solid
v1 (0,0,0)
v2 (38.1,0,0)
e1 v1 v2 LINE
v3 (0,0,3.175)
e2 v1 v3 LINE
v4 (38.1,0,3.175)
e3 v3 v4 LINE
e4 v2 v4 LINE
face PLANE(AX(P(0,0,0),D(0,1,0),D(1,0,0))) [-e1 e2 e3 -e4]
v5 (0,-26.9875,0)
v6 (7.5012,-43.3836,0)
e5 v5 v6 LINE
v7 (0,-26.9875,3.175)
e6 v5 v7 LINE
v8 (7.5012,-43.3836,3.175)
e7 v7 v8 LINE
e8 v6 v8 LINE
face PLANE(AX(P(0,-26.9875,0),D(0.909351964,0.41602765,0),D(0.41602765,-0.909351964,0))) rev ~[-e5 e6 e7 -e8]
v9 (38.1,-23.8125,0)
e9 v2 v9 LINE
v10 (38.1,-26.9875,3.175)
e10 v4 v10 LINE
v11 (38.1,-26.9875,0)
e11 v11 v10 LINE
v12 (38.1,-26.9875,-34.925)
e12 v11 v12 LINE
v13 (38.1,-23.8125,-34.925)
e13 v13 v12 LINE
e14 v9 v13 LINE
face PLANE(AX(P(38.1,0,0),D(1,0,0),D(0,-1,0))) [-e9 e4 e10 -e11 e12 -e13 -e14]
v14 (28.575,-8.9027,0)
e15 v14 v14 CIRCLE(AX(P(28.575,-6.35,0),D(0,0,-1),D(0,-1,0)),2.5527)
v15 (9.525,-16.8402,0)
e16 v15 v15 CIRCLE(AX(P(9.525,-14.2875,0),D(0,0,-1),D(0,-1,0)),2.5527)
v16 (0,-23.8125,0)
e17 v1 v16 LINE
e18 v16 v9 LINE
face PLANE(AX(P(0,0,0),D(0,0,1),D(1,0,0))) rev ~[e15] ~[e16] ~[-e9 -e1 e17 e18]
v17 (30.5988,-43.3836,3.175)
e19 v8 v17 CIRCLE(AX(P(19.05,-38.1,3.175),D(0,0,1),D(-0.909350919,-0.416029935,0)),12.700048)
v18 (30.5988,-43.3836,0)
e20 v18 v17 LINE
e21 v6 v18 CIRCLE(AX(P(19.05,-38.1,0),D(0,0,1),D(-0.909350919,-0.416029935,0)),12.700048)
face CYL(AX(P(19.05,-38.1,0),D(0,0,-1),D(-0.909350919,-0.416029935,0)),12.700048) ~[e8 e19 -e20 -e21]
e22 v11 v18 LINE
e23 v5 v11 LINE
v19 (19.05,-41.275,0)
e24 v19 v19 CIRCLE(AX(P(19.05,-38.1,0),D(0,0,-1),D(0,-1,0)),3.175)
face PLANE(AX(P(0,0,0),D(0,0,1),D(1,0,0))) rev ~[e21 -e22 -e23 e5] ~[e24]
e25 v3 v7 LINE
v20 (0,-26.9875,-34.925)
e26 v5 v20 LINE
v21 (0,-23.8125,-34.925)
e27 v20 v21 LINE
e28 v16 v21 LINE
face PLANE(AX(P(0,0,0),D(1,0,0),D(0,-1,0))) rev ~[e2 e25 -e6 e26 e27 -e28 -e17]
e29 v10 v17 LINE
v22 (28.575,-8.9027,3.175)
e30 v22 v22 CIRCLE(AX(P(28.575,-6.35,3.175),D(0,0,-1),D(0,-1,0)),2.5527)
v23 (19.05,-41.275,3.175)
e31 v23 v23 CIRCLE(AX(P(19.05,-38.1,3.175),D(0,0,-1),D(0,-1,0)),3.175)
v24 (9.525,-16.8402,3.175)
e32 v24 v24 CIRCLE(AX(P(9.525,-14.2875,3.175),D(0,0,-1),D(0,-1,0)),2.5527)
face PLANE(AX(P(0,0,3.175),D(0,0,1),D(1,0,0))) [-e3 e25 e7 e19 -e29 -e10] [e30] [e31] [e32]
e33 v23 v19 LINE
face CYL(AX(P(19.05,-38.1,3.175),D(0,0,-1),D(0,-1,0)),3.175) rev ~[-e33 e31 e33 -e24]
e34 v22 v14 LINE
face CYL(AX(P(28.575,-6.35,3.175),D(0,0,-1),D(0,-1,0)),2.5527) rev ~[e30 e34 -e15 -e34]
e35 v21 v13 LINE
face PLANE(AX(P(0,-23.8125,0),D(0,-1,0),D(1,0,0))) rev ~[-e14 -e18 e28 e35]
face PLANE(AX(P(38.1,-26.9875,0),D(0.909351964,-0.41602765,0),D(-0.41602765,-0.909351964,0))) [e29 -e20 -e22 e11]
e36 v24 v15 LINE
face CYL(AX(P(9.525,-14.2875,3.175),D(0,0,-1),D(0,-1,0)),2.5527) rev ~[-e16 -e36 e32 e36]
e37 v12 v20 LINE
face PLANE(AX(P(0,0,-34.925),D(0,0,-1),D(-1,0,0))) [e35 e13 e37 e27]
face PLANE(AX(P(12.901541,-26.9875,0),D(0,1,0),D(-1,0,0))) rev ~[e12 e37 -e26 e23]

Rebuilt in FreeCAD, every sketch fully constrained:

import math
import FreeCAD as App
import Part
import Sketcher
Q = App.Units.Quantity


def add_polygon(sketch, points):
    """Adds a closed chain of lines whose ends are joined by coincident constraints."""
    first, n = sketch.GeometryCount, len(points)
    for a, b in zip(points, points[1:] + points[:1]):
        sketch.addGeometry(Part.LineSegment(App.Vector(*a, 0), App.Vector(*b, 0)), False)
    for i in range(n):
        sketch.addConstraint(Sketcher.Constraint("Coincident", first + i, 2, first + (i + 1) % n, 1))

doc = App.newDocument("Part")
body = doc.addObject("PartDesign::Body", "Body")

# Sketch on XY plane
sketch1 = body.newObject("Sketcher::SketchObject", "Sketch")
sketch1.AttachmentSupport = (doc.getObject("XY_Plane"), [""])
sketch1.MapMode = "FlatFace"
sketch1.addGeometry([
    Part.LineSegment(App.Vector(38, 0, 0), App.Vector(0, 0, 0)),  # 0
    Part.LineSegment(App.Vector(0, 0, 0), App.Vector(0, -27, 0)),  # 1
    Part.LineSegment(App.Vector(0, -27, 0), App.Vector(8, -43, 0)),  # 2
    Part.ArcOfCircle(Part.Circle(App.Vector(19, -38, 0), App.Vector(0, 0, 1), 13), math.radians(-155), math.radians(-25)),  # 3
    Part.LineSegment(App.Vector(31, -43, 0), App.Vector(38, -27, 0)),  # 4
    Part.LineSegment(App.Vector(38, -27, 0), App.Vector(38, 0, 0)),  # 5
], False)
sketch1.addConstraint([
    Sketcher.Constraint("Coincident", 0, 2, 1, 1),
    Sketcher.Constraint("Coincident", 1, 2, 2, 1),
    Sketcher.Constraint("Tangent", 2, 2, 3, 1),
    Sketcher.Constraint("Tangent", 3, 2, 4, 1),
    Sketcher.Constraint("Coincident", 4, 2, 5, 1),
    Sketcher.Constraint("Coincident", 5, 2, 0, 1),
    Sketcher.Constraint("Horizontal", 0),
    Sketcher.Constraint("Vertical", 1),
    Sketcher.Constraint("Vertical", 5),
    Sketcher.Constraint("Coincident", 0, 2, -1, 1),
    Sketcher.Constraint("Horizontal", 2, 2, 3, 2),
    Sketcher.Constraint("Horizontal", 1, 2, 4, 2),
    Sketcher.Constraint("Radius", 3, Q("0.5 in")),
    Sketcher.Constraint("DistanceX", 0, 2, 0, 1, Q("1.5 in")),
    Sketcher.Constraint("DistanceY", 3, 3, -1, 1, Q("1.5 in")),
    Sketcher.Constraint("DistanceY", 1, 2, 1, 1, Q("1.0625 in")),
])
pad1 = body.newObject("PartDesign::Pad", "Pad")
pad1.Profile = sketch1
pad1.Length = Q("0.125 in")

# Sketch on XY plane
sketch2 = body.newObject("Sketcher::SketchObject", "Sketch001")
sketch2.AttachmentSupport = (doc.getObject("XY_Plane"), [""])
sketch2.MapMode = "FlatFace"
add_polygon(sketch2, [(0, -23.8), (38.1, -23.8), (38.1, -27), (0, -27)])  # lines 0-3
sketch2.addConstraint([
    Sketcher.Constraint("Horizontal", 0),
    Sketcher.Constraint("Vertical", 1),
    Sketcher.Constraint("Horizontal", 2),
    Sketcher.Constraint("Vertical", 3),
    Sketcher.Constraint("PointOnObject", 2, 2, -2),
    Sketcher.Constraint("DistanceY", 1, 2, 1, 1, Q("0.125 in")),
    Sketcher.Constraint("DistanceX", 0, 1, 0, 2, Q("1.5 in")),
    Sketcher.Constraint("DistanceY", 0, 2, -1, 1, Q("0.9375 in")),
])
pad2 = body.newObject("PartDesign::Pad", "Pad001")
pad2.Profile = sketch2
pad2.Length = Q("1.375 in")
pad2.Reversed = True

# Sketch on XY plane
sketch3 = body.newObject("Sketcher::SketchObject", "Sketch002")
sketch3.AttachmentSupport = (doc.getObject("XY_Plane"), [""])
sketch3.MapMode = "FlatFace"
sketch3.AttachmentOffset = App.Placement(App.Vector(0, 0, 0.125 * 25.4), App.Rotation())
sketch3.addGeometry([
    Part.Circle(App.Vector(9.5, -14.3, 0), App.Vector(0, 0, 1), 2.6),
    Part.Circle(App.Vector(28.6, -6.3, 0), App.Vector(0, 0, 1), 2.6),
], False)
sketch3.addConstraint([
    Sketcher.Constraint("Equal", 0, 1),
    Sketcher.Constraint("Diameter", 0, Q("0.201 in")),
    Sketcher.Constraint("DistanceY", 1, 3, -1, 1, Q("0.25 in")),
    Sketcher.Constraint("DistanceX", 0, 3, 1, 3, Q("0.75 in")),
    Sketcher.Constraint("DistanceX", -1, 1, 0, 3, Q("0.375 in")),
    Sketcher.Constraint("DistanceY", 0, 3, -1, 1, Q("0.5625 in")),
])
doc.recompute()
hole = body.newObject("PartDesign::Hole", "Hole")
hole.Profile = sketch3
hole.ThreadType = "None"
hole.Diameter = Q("0.201 in")
hole.DepthType = "ThroughAll"

# Sketch on XY plane
sketch4 = body.newObject("Sketcher::SketchObject", "Sketch003")
sketch4.AttachmentSupport = (doc.getObject("XY_Plane"), [""])
sketch4.MapMode = "FlatFace"
sketch4.AttachmentOffset = App.Placement(App.Vector(0, 0, 0.125 * 25.4), App.Rotation())
sketch4.addGeometry(Part.Circle(App.Vector(19.1, -38.1, 0), App.Vector(0, 0, 1), 3.2), False)
sketch4.addConstraint([
    Sketcher.Constraint("Diameter", 0, Q("0.25 in")),
    Sketcher.Constraint("DistanceY", 0, 3, -1, 1, Q("1.5 in")),
    Sketcher.Constraint("DistanceX", -1, 1, 0, 3, Q("0.75 in")),
])
doc.recompute()
hole2 = body.newObject("PartDesign::Hole", "Hole001")
hole2.Profile = sketch4
hole2.ThreadType = "None"
hole2.Diameter = Q("0.25 in")
hole2.DepthType = "ThroughAll"

doc.recompute()
